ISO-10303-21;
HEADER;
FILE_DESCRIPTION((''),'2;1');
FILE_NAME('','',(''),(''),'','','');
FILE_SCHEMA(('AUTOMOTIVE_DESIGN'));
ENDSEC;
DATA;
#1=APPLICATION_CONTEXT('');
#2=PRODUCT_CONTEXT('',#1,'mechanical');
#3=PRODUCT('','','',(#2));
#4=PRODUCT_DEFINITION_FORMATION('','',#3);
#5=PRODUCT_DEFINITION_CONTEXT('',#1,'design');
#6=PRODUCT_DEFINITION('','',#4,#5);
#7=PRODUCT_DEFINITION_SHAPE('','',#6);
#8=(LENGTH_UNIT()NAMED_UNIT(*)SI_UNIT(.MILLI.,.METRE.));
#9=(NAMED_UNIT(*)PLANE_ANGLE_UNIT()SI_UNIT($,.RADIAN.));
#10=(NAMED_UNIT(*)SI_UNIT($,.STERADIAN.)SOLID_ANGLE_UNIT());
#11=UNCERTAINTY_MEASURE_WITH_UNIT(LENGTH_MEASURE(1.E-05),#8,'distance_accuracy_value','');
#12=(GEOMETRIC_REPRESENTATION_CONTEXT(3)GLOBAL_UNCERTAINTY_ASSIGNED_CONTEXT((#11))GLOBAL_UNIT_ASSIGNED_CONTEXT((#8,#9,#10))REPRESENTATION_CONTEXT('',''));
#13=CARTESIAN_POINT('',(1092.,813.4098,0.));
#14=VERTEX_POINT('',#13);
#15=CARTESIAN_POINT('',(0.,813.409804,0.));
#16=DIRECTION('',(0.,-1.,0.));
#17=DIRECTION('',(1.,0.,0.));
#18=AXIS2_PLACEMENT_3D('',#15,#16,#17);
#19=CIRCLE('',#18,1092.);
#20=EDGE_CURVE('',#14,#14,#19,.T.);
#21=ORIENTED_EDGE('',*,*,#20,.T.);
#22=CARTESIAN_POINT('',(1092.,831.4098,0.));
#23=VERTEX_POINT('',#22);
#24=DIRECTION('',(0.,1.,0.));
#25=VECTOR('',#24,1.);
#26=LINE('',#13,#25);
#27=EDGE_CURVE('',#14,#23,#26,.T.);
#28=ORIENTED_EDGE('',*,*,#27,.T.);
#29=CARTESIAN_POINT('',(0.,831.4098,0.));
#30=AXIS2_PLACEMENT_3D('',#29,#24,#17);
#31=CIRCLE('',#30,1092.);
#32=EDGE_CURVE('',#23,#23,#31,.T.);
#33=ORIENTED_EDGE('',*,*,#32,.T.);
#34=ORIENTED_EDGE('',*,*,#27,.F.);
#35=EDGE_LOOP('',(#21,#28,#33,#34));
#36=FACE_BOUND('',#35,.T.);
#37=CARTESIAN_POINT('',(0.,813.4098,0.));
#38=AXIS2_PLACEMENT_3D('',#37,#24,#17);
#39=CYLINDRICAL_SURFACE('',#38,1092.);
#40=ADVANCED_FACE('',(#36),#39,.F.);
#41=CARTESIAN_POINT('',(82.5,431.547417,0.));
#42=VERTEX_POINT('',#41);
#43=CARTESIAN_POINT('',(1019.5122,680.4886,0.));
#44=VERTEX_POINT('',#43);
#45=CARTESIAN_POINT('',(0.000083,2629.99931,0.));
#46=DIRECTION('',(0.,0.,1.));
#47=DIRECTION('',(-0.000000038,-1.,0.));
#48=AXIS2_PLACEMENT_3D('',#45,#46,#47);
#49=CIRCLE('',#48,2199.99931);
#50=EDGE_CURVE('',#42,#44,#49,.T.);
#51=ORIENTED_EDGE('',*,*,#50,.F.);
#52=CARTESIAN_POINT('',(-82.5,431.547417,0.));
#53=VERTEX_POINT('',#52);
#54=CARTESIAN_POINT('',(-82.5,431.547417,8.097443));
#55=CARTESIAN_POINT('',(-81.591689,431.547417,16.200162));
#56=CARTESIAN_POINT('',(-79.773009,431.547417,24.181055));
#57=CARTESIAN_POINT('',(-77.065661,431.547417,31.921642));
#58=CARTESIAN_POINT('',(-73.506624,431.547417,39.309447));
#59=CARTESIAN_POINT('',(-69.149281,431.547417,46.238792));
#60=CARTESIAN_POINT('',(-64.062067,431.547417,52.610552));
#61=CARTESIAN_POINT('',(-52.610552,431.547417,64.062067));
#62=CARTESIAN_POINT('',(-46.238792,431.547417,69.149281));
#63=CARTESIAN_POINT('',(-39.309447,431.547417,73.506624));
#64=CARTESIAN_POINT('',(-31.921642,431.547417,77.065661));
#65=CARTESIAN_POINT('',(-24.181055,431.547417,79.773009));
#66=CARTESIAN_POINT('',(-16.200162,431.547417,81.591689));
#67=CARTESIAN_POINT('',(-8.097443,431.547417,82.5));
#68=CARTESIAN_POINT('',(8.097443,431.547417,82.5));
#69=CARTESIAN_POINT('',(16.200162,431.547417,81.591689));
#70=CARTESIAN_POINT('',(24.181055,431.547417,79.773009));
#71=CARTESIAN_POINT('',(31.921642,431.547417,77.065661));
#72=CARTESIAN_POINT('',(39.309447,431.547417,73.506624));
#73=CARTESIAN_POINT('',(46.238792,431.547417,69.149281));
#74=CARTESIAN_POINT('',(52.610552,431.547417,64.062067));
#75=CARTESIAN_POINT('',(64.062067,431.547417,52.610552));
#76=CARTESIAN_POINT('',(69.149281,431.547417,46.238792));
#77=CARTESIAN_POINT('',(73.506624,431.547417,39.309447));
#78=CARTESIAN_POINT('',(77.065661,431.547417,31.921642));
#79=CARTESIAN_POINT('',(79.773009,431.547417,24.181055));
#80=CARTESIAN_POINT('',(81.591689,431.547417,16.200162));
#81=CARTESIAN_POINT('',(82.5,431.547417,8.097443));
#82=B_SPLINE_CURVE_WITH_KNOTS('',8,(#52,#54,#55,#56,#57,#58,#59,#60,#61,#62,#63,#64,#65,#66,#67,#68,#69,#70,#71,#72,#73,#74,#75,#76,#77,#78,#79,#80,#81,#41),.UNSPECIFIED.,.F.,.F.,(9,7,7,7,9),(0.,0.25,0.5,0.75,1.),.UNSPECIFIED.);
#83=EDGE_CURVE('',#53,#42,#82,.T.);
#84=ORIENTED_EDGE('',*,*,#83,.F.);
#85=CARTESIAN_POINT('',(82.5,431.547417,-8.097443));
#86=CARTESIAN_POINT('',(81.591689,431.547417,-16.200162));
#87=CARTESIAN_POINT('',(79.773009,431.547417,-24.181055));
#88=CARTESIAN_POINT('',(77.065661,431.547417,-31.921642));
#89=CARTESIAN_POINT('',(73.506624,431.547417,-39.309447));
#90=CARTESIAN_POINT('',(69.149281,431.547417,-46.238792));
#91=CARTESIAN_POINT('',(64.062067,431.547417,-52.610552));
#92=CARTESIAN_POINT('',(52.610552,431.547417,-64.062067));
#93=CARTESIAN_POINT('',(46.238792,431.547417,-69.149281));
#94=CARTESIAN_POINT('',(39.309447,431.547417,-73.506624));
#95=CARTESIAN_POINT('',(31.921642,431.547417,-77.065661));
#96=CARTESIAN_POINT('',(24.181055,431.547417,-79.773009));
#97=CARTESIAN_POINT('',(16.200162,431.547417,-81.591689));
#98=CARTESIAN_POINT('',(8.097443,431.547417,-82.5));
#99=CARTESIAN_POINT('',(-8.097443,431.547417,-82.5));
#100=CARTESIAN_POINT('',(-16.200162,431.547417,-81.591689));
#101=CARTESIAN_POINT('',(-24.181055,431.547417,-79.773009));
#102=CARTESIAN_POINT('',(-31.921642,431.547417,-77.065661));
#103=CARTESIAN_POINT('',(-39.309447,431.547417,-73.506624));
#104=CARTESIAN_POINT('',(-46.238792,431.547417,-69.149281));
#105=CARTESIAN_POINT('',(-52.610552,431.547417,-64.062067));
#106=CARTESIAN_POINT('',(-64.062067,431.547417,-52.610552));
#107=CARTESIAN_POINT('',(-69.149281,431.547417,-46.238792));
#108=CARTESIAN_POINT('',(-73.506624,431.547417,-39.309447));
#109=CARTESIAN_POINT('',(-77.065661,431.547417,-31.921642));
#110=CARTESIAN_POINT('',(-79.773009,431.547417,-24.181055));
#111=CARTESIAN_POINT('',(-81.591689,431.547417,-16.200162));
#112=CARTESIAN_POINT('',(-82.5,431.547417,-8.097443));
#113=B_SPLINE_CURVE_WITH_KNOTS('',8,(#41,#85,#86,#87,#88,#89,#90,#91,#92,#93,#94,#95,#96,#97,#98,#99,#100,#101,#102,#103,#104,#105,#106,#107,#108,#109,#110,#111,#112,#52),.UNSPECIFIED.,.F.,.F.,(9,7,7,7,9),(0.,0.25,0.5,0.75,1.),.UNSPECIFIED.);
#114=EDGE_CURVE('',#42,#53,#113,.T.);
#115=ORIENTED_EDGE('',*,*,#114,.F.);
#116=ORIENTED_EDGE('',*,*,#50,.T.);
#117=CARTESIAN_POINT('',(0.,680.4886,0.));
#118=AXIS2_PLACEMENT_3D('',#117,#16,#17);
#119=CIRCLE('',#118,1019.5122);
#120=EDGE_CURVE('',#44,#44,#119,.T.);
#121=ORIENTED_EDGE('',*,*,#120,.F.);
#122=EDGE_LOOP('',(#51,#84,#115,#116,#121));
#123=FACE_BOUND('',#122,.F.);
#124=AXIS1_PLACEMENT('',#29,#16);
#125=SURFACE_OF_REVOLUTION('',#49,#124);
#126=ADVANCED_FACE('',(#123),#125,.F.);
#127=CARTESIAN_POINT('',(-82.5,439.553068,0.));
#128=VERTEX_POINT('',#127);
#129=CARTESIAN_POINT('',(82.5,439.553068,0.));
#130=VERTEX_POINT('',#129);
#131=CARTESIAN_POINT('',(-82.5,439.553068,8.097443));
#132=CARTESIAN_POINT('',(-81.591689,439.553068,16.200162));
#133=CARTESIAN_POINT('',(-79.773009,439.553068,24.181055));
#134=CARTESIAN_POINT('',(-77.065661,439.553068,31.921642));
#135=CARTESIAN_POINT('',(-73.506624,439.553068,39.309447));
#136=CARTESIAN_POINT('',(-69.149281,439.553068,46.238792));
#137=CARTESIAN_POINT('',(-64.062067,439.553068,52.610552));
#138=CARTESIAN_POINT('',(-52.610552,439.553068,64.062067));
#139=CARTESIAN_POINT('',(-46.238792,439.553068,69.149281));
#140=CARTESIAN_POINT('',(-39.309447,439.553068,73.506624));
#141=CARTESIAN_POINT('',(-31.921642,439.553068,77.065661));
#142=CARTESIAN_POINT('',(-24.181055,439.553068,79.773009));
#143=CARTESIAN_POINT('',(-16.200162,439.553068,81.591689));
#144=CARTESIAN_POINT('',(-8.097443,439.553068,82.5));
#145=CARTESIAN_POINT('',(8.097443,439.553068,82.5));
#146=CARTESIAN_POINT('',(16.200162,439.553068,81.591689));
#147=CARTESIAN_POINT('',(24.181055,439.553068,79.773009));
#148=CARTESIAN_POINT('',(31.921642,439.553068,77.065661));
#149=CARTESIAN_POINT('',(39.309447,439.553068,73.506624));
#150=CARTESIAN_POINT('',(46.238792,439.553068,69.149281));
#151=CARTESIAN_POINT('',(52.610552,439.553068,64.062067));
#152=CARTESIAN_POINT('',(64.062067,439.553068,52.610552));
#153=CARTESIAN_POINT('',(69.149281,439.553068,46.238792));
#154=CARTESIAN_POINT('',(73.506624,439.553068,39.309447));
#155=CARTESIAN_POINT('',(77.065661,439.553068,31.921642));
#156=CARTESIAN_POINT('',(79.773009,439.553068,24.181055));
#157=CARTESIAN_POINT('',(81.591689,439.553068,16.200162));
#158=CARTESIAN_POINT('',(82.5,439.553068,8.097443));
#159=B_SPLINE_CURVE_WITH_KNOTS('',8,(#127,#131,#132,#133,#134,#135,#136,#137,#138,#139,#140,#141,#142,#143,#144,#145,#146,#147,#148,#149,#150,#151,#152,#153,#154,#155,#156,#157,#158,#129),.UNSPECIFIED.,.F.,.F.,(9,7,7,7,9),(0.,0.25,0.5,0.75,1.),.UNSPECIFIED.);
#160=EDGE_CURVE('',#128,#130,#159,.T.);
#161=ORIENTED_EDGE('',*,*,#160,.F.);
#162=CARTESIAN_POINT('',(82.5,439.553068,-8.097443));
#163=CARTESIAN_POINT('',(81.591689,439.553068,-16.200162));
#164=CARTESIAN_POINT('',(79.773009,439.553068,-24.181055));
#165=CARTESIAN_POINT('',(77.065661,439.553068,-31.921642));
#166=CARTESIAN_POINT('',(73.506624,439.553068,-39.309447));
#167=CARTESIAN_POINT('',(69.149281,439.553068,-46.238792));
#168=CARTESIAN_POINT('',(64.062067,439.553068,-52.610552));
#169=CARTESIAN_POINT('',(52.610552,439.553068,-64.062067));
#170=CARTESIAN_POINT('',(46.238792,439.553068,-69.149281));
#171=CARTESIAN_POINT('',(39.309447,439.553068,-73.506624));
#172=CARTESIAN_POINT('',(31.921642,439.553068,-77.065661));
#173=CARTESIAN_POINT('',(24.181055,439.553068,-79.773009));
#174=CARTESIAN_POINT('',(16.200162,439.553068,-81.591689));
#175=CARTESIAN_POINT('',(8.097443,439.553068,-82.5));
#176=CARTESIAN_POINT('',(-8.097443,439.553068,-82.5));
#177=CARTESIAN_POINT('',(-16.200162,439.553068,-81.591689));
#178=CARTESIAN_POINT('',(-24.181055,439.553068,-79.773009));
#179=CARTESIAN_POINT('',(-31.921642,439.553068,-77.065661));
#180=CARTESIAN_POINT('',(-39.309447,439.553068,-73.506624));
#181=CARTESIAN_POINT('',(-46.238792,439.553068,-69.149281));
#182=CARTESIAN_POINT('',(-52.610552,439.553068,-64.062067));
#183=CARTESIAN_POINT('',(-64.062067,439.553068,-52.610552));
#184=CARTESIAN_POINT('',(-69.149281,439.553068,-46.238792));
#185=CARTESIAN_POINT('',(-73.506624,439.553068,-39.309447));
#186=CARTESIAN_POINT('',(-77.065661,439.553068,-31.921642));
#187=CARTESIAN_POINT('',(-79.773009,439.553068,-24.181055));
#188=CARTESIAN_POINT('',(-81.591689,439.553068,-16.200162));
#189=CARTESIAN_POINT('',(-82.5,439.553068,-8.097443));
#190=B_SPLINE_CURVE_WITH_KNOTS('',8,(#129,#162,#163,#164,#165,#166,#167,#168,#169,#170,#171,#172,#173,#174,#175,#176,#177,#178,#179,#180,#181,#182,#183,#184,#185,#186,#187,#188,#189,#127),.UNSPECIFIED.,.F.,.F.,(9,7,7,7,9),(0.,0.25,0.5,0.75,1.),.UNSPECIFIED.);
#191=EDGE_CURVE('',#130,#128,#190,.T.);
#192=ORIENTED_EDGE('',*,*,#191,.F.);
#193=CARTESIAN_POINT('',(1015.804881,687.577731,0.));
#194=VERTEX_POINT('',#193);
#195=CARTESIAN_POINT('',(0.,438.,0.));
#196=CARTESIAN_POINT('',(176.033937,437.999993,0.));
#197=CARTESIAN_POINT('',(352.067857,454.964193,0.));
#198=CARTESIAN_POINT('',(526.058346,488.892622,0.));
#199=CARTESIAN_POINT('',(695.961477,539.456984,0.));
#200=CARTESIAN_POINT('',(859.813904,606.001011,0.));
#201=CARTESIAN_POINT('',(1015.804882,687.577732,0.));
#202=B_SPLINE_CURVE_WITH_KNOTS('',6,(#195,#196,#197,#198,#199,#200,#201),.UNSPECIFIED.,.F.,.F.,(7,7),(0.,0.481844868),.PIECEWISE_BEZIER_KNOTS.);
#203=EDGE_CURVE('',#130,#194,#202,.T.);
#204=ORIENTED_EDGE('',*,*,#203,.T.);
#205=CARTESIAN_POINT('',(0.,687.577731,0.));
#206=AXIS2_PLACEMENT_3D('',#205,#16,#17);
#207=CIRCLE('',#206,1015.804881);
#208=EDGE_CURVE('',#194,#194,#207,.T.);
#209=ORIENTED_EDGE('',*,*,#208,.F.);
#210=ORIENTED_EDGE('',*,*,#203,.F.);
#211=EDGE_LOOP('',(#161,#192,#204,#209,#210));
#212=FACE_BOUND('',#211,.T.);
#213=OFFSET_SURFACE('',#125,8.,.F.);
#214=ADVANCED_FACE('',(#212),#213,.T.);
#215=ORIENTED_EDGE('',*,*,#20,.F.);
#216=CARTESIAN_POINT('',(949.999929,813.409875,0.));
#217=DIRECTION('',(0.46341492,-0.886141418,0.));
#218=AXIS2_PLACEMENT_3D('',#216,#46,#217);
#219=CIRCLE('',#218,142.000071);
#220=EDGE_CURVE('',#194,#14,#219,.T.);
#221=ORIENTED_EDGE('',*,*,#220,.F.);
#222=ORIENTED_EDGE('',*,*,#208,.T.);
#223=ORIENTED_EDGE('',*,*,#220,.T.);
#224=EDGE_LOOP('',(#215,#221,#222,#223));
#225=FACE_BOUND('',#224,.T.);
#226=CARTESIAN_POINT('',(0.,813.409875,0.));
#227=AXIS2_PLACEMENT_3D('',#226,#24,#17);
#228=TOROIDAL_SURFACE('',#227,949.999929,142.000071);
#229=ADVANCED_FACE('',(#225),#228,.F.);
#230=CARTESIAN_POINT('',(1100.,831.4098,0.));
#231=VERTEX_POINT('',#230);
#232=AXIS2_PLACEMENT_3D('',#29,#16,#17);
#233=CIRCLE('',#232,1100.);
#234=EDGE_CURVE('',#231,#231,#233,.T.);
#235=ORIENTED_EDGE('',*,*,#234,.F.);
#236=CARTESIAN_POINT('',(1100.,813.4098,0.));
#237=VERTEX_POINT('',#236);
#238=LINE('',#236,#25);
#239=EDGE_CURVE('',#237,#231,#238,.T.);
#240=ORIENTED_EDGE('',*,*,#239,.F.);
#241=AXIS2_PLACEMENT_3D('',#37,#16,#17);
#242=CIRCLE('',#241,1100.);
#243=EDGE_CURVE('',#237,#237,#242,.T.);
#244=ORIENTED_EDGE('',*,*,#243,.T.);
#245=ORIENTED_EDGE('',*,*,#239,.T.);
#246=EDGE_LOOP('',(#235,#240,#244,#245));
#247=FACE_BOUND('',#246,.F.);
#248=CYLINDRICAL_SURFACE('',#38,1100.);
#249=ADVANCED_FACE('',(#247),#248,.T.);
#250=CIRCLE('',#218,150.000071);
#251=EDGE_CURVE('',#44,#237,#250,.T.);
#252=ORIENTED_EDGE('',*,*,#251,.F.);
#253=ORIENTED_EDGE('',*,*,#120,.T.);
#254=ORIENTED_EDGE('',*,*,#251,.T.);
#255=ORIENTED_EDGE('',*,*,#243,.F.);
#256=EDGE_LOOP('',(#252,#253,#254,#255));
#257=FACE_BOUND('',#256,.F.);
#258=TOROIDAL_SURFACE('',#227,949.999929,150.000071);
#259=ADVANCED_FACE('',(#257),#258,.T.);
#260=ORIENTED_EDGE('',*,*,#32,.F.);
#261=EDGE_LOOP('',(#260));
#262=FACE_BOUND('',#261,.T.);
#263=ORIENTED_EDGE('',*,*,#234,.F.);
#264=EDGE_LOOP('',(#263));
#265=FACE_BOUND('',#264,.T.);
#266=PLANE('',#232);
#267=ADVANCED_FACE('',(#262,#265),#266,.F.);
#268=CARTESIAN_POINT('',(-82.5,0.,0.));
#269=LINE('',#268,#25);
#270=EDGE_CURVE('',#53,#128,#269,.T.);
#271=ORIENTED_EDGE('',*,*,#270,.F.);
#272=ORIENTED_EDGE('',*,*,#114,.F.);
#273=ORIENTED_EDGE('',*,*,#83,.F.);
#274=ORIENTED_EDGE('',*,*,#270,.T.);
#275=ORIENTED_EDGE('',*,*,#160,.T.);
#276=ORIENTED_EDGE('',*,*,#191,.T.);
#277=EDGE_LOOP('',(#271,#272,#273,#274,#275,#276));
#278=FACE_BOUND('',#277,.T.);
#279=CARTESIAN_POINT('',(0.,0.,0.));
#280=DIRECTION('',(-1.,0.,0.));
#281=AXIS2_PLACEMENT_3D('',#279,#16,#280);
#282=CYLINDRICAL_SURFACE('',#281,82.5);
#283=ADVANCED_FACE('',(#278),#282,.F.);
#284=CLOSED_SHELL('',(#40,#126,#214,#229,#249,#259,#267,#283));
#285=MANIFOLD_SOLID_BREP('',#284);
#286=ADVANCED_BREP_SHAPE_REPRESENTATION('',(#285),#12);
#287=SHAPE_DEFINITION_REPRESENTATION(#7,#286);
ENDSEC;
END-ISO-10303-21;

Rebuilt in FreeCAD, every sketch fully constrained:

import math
import FreeCAD as App
import Part
import Sketcher


def faces_at(feature, points):
    """Names of the faces that lie closest to the given points."""
    faces = feature.Shape.Faces
    near = lambda p: min(range(len(faces)), key=lambda i: faces[i].distToShape(Part.Vertex(*p))[0])
    return sorted({f"Face{near(p) + 1}" for p in points})

doc = App.newDocument("Part")
params = doc.addObject("Spreadsheet::Sheet", "Params")
for row, (alias, value) in enumerate([
    ("sketch1_radius", "2200 mm"),
    ("sketch1_radius2", "150 mm"),
    ("sketch1_height", "18 mm"),
    ("sketch1_width", "1100 mm"),
    ("revolution_angle", "360 deg"),
    ("thickness_wall", "8 mm"),
    ("sketch2_diameter", "165 mm"),
], start=1):
    params.set(f"A{row}", alias)
    params.set(f"B{row}", "=" + value)
    params.setAlias(f"B{row}", alias)

body = doc.addObject("PartDesign::Body", "Body")

# Sketch on XY plane
sketch1 = body.newObject("Sketcher::SketchObject", "Sketch")
sketch1.AttachmentSupport = (doc.getObject("XY_Plane"), [""])
sketch1.MapMode = "FlatFace"
sketch1.addGeometry(Part.ArcOfCircle(Part.Circle(App.Vector(0, 2630, 0), App.Vector(0, 0, 1), 2199.99996), math.radians(-90), math.radians(-62.392331)), False)
sketch1.addGeometry(Part.ArcOfCircle(Part.Circle(App.Vector(950, 813.4098, 0), App.Vector(0, 0, 1), 149.999971), math.radians(-62.392324), math.radians(0)), False)
sketch1.addGeometry(Part.LineSegment(App.Vector(1100, 813.4098, 0), App.Vector(1100, 831.4098, 0)), False)
sketch1.addGeometry(Part.LineSegment(App.Vector(1100, 831.4098, 0), App.Vector(0, 831.4098, 0)), False)
sketch1.addGeometry(Part.LineSegment(App.Vector(0, 831.4098, 0), App.Vector(0, 430, 0)), False)
sketch1.addConstraint(Sketcher.Constraint("Tangent", 0, 2, 1, 1))
sketch1.addConstraint(Sketcher.Constraint("Tangent", 1, 2, 2, 1))
sketch1.addConstraint(Sketcher.Constraint("Coincident", 2, 2, 3, 1))
sketch1.addConstraint(Sketcher.Constraint("Coincident", 3, 2, 4, 1))
sketch1.addConstraint(Sketcher.Constraint("Coincident", 4, 2, 0, 1))
sketch1.addConstraint(Sketcher.Constraint("Vertical", 2))
sketch1.addConstraint(Sketcher.Constraint("Horizontal", 3))
sketch1.addConstraint(Sketcher.Constraint("Vertical", 4))
sketch1.addConstraint(Sketcher.Constraint("PointOnObject", 0, 3, -2))
sketch1.addConstraint(Sketcher.Constraint("PointOnObject", 3, 2, -2))
sketch1.addConstraint(Sketcher.Constraint("Radius", 0, 2200.0))
sketch1.addConstraint(Sketcher.Constraint("Radius", 1, 150.0))
sketch1.addConstraint(Sketcher.Constraint("DistanceY", 2, 1, 2, 2, 18.0))
sketch1.addConstraint(Sketcher.Constraint("DistanceY", -1, 1, 4, 2, 430.0))
sketch1.addConstraint(Sketcher.Constraint("DistanceX", 3, 2, 3, 1, 1100.0))
sketch1.setExpression("Constraints[10]", "Params.sketch1_radius")
sketch1.setExpression("Constraints[11]", "Params.sketch1_radius2")
sketch1.setExpression("Constraints[12]", "Params.sketch1_height")
sketch1.setExpression("Constraints[14]", "Params.sketch1_width")
revolution = body.newObject("PartDesign::Revolution", "Revolution")
revolution.Profile = sketch1
revolution.ReferenceAxis = (sketch1, ["V_Axis"])
revolution.setExpression("Angle", "Params.revolution_angle")
doc.recompute()

thickness = body.newObject("PartDesign::Thickness", "Thickness")
thickness.Base = (revolution, faces_at(revolution, [(-192.246, 831.41, 312.227)]))
thickness.setExpression("Value", "Params.thickness_wall")
thickness.Reversed = True
thickness.Join = "Intersection"

# Sketch on XZ plane
sketch2 = body.newObject("Sketcher::SketchObject", "Sketch001")
sketch2.AttachmentSupport = (doc.getObject("XZ_Plane"), [""])
sketch2.MapMode = "FlatFace"
sketch2.addGeometry(Part.Circle(App.Vector(0, 0, 0), App.Vector(0, 0, 1), 82.5), False)
sketch2.addConstraint(Sketcher.Constraint("Coincident", 0, 3, -1, 1))
sketch2.addConstraint(Sketcher.Constraint("Diameter", 0, 165.0))
sketch2.setExpression("Constraints[1]", "Params.sketch2_diameter")
pocket1 = body.newObject("PartDesign::Pocket", "Pocket")
pocket1.Profile = sketch2
pocket1.Type = "ThroughAll"

doc.recompute()
